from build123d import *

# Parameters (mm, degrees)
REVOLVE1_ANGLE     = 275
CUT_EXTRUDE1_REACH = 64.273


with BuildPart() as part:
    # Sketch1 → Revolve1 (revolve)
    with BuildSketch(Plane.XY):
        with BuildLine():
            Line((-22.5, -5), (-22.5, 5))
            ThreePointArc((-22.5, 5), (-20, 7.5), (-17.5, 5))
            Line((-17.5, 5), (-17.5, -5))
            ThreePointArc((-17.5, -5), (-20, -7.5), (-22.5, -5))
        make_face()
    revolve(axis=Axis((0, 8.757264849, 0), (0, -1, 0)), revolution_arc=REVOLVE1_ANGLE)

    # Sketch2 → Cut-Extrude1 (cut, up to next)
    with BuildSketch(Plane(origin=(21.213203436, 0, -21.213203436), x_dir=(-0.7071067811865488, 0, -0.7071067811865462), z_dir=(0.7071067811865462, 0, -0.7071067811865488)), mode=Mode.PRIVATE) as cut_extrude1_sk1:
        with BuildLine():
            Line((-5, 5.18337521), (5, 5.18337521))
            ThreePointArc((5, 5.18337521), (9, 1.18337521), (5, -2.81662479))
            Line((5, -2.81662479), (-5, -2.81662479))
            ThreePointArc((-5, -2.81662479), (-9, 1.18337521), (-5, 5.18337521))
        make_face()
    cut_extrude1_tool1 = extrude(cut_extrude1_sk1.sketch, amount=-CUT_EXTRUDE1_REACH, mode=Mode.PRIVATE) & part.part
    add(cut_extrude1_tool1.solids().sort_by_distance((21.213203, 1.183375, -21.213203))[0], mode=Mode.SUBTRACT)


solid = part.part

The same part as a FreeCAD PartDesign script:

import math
import FreeCAD as App
import Part
import Sketcher

V = App.Vector
Q = App.Units.Quantity

doc = App.newDocument("Part")
body = doc.addObject("PartDesign::Body", "Body")

# Sketch on XY plane
sketch1 = body.newObject("Sketcher::SketchObject", "Sketch")
sketch1.AttachmentSupport = (doc.getObject("XY_Plane"), [""])
sketch1.MapMode = "FlatFace"
sketch1.addGeometry([
    Part.LineSegment(V(-22.5, 5, 0), V(-22.5, -5, 0)),
    Part.ArcOfCircle(Part.Circle(V(-20, -5, 0), V(0, 0, 1), 2.5), math.radians(180), math.radians(360)),
    Part.LineSegment(V(-17.5, -5, 0), V(-17.5, 5, 0)),
    Part.ArcOfCircle(Part.Circle(V(-20, 5, 0), V(0, 0, 1), 2.5), math.radians(0), math.radians(180)),
], False)
sketch1.addConstraint([
    Sketcher.Constraint("Tangent", 0, 2, 1, 1),
    Sketcher.Constraint("Tangent", 1, 2, 2, 1),
    Sketcher.Constraint("Tangent", 2, 2, 3, 1),
    Sketcher.Constraint("Tangent", 3, 2, 0, 1),
    Sketcher.Constraint("Vertical", 0),
    Sketcher.Constraint("Vertical", 2),
    Sketcher.Constraint("Radius", 1, Q("2.5 mm")),
    Sketcher.Constraint("DistanceY", 0, 2, 0, 1, Q("10 mm")),
    Sketcher.Constraint("DistanceX", 1, 3, -1, 1, Q("20 mm")),
    Sketcher.Constraint("DistanceY", 1, 3, -1, 1, Q("5 mm")),
])
revolution = body.newObject("PartDesign::Revolution", "Revolution")
revolution.Profile = sketch1
revolution.ReferenceAxis = (sketch1, ["V_Axis"])
revolution.Angle = 275
revolution.Reversed = True

# Sketch on an angled plane
sketch2 = body.newObject("Sketcher::SketchObject", "Sketch001")
sketch2.Placement = App.Placement(V(21.213203, 0, -21.213203), App.Rotation(V(-0.707106781, 0, -0.707106781), V(0, 0.999999999, 0), V(0.707106781, 0, -0.707106781), "ZXY"))
sketch2.addGeometry([
    Part.LineSegment(V(5, 5.183375, 0), V(-5, 5.183375, 0)),
    Part.ArcOfCircle(Part.Circle(V(-5, 1.183375, 0), V(0, 0, 1), 4), math.radians(90), math.radians(270)),
    Part.LineSegment(V(-5, -2.816625, 0), V(5, -2.816625, 0)),
    Part.ArcOfCircle(Part.Circle(V(5, 1.183375, 0), V(0, 0, 1), 4), math.radians(-90), math.radians(90)),
], False)
sketch2.addConstraint([
    Sketcher.Constraint("Tangent", 0, 2, 1, 1),
    Sketcher.Constraint("Tangent", 1, 2, 2, 1),
    Sketcher.Constraint("Tangent", 2, 2, 3, 1),
    Sketcher.Constraint("Tangent", 3, 2, 0, 1),
    Sketcher.Constraint("Horizontal", 0),
    Sketcher.Constraint("Horizontal", 2),
    Sketcher.Constraint("Radius", 1, Q("4 mm")),
    Sketcher.Constraint("DistanceX", 0, 2, 0, 1, Q("10 mm")),
    Sketcher.Constraint("DistanceX", 1, 3, -1, 1, Q("5 mm")),
    Sketcher.Constraint("DistanceY", -1, 1, 1, 3, Q("1.183375 mm")),
])
pocket1 = body.newObject("PartDesign::Pocket", "Pocket")
pocket1.Profile = sketch2
pocket1.Type = "UpToFirst"

doc.recompute()
